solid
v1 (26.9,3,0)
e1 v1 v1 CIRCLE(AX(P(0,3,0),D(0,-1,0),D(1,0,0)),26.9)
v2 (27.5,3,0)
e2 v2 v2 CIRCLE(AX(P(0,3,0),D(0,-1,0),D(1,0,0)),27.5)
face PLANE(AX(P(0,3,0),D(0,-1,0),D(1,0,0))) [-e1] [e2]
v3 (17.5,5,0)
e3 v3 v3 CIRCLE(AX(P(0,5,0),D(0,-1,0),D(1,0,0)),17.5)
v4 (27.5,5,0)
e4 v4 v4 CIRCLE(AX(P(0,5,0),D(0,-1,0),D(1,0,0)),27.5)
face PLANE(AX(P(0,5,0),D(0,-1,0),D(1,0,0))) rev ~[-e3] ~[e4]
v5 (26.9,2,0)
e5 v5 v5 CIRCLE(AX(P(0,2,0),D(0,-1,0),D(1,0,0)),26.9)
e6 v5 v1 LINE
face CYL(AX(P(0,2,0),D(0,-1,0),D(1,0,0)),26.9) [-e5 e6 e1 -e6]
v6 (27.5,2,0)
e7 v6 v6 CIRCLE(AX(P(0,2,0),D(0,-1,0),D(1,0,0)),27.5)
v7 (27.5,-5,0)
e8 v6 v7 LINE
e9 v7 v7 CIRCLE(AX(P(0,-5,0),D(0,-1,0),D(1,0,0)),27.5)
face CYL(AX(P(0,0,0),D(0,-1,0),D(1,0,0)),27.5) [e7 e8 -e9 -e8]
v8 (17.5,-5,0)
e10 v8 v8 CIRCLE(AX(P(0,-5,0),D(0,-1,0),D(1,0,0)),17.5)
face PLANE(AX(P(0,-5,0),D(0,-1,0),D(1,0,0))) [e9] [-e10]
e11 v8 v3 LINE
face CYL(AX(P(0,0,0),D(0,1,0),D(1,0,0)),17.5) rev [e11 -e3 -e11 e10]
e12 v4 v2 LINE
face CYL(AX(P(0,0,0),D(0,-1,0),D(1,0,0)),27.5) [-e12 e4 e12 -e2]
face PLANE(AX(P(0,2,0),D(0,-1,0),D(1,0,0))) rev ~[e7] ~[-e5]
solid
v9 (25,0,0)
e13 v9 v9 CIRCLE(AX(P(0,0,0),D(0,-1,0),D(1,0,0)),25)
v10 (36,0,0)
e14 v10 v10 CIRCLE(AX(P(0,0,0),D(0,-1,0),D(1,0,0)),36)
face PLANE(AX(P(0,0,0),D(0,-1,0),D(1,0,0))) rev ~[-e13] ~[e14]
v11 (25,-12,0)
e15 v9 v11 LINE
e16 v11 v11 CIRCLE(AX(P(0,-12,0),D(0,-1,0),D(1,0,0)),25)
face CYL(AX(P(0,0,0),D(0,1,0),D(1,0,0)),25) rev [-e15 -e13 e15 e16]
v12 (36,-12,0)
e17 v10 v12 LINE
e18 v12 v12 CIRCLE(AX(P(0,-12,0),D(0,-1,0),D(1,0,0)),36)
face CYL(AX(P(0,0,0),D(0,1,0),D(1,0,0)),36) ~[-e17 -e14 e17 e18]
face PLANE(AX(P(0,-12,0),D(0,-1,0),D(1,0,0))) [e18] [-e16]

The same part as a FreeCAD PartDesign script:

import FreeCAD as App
import Part
import Sketcher
Q = App.Units.Quantity

doc = App.newDocument("Part")
body = doc.addObject("PartDesign::Body", "Body")

sketch1 = body.newObject("Sketcher::SketchObject", "Sketch")
sketch1.AttachmentSupport = (doc.getObject("XZ_Plane"), [""])
sketch1.MapMode = "FlatFace"
sketch1.addGeometry(Part.Circle(App.Vector(0, 0, 0), App.Vector(0, 0, 1), 28), False)
sketch1.addGeometry(Part.Circle(App.Vector(0, 0, 0), App.Vector(0, 0, 1), 18), False)
sketch1.addConstraint(Sketcher.Constraint("Coincident", 0, 3, -1, 1))
sketch1.addConstraint(Sketcher.Constraint("Coincident", 1, 3, -1, 1))
sketch1.addConstraint(Sketcher.Constraint("Diameter", 0, Q("55 mm")))
sketch1.addConstraint(Sketcher.Constraint("Diameter", 1, Q("35 mm")))
pad1 = body.newObject("PartDesign::Pad", "Pad")
pad1.Profile = sketch1
pad1.Length = 10
pad1.Midplane = True

sketch2 = body.newObject("Sketcher::SketchObject", "Sketch001")
sketch2.AttachmentSupport = (doc.getObject("XZ_Plane"), [""])
sketch2.MapMode = "FlatFace"
sketch2.AttachmentOffset = App.Placement(App.Vector(0, 0, -2), App.Rotation())
sketch2.addGeometry(Part.Circle(App.Vector(0, 0, 0), App.Vector(0, 0, 1), 28), False)
sketch2.addGeometry(Part.Circle(App.Vector(0, 0, 0), App.Vector(0, 0, 1), 27), False)
sketch2.addConstraint(Sketcher.Constraint("Coincident", 0, 3, -1, 1))
sketch2.addConstraint(Sketcher.Constraint("Coincident", 1, 3, -1, 1))
sketch2.addConstraint(Sketcher.Constraint("Diameter", 0, Q("55 mm")))
sketch2.addConstraint(Sketcher.Constraint("Diameter", 1, Q("53.8 mm")))
pocket1 = body.newObject("PartDesign::Pocket", "Pocket")
pocket1.Profile = sketch2
pocket1.Length = 1
body2 = doc.addObject("PartDesign::Body", "Body001")

sketch3 = body2.newObject("Sketcher::SketchObject", "Sketch002")
sketch3.AttachmentSupport = (doc.getObject("XZ_Plane001"), [""])
sketch3.MapMode = "FlatFace"
sketch3.addGeometry(Part.Circle(App.Vector(0, 0, 0), App.Vector(0, 0, 1), 36), False)
sketch3.addGeometry(Part.Circle(App.Vector(0, 0, 0), App.Vector(0, 0, 1), 25), False)
sketch3.addConstraint(Sketcher.Constraint("Coincident", 0, 3, -1, 1))
sketch3.addConstraint(Sketcher.Constraint("Coincident", 1, 3, -1, 1))
sketch3.addConstraint(Sketcher.Constraint("Diameter", 0, Q("72 mm")))
sketch3.addConstraint(Sketcher.Constraint("Diameter", 1, Q("50 mm")))
pad2 = body2.newObject("PartDesign::Pad", "Pad001")
pad2.Profile = sketch3
pad2.Length = 12

doc.recompute()
